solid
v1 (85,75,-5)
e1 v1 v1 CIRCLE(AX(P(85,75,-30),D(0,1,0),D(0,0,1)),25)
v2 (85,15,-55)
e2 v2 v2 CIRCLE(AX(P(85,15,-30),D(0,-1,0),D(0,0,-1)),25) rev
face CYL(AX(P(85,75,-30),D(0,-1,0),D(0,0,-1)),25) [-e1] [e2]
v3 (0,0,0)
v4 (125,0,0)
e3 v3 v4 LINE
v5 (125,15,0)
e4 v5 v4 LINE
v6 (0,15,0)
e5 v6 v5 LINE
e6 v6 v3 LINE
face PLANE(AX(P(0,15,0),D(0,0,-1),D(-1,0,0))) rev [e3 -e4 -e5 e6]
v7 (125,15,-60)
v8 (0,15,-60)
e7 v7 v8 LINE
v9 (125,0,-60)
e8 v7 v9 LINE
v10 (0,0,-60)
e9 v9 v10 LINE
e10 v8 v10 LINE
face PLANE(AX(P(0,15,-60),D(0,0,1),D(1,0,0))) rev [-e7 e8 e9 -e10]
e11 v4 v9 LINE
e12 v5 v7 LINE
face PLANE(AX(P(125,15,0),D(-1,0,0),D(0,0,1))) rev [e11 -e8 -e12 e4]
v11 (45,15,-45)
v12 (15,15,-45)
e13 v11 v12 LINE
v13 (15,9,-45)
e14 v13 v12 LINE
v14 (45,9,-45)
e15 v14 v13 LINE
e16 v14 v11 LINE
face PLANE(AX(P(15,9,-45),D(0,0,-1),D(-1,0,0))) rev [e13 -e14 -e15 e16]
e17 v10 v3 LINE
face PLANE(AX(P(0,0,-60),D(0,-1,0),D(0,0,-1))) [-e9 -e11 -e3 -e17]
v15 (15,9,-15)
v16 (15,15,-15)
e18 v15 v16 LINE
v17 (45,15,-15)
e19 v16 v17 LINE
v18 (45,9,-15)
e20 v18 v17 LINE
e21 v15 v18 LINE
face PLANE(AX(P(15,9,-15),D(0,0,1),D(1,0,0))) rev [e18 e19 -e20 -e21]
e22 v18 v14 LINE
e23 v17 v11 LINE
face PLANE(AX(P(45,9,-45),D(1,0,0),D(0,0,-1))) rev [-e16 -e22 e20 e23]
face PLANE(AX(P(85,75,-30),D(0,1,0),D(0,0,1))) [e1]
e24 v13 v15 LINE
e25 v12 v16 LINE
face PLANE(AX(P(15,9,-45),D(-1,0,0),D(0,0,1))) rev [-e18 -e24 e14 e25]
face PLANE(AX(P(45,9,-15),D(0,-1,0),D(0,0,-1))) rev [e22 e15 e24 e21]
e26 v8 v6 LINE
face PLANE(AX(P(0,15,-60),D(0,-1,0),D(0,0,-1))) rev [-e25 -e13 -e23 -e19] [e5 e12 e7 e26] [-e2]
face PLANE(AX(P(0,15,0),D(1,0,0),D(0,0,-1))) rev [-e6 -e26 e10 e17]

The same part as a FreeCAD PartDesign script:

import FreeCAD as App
import Part
import Sketcher
from FreeCAD import Vector

doc = App.newDocument("Part")
params = doc.addObject("Spreadsheet::Sheet", "Params")
for row, (alias, value) in enumerate([
    ("sketch1_width", "125 mm"),
    ("sketch1_height", "60 mm"),
    ("pad1_length", "15 mm"),
    ("sketch2_diameter", "50 mm"),
    ("pad2_length", "60 mm"),
    ("sketch3_width", "30 mm"),
    ("pocket1_length", "6 mm"),
], start=1):
    params.set(f"A{row}", alias)
    params.set(f"B{row}", "=" + value)
    params.setAlias(f"B{row}", alias)

body = doc.addObject("PartDesign::Body", "Body")

# Sketch on XZ plane
sketch1 = doc.addObject("Sketcher::SketchObject", "Sketch")
body.addObject(sketch1)
sketch1.AttachmentSupport = (doc.XZ_Plane, [""])
sketch1.MapMode = "FlatFace"
sketch1.addGeometry([
    Part.LineSegment(Vector(0, -60, 0), Vector(0, 0, 0)),
    Part.LineSegment(Vector(0, 0, 0), Vector(125, 0, 0)),
    Part.LineSegment(Vector(125, 0, 0), Vector(125, -60, 0)),
    Part.LineSegment(Vector(125, -60, 0), Vector(0, -60, 0)),
], False)
sketch1.addConstraint([
    Sketcher.Constraint("Coincident", 0, 2, 1, 1),
    Sketcher.Constraint("Coincident", 1, 2, 2, 1),
    Sketcher.Constraint("Coincident", 2, 2, 3, 1),
    Sketcher.Constraint("Coincident", 3, 2, 0, 1),
    Sketcher.Constraint("Vertical", 0),
    Sketcher.Constraint("Horizontal", 1),
    Sketcher.Constraint("Vertical", 2),
    Sketcher.Constraint("Horizontal", 3),
    Sketcher.Constraint("Coincident", 0, 2, -1, 1),
    Sketcher.Constraint("DistanceX", 1, 1, 1, 2, 125.0),
    Sketcher.Constraint("DistanceY", 0, 1, 0, 2, 60.0),
])
sketch1.setExpression("Constraints[9]", "Params.sketch1_width")
sketch1.setExpression("Constraints[10]", "Params.sketch1_height")
pad1 = doc.addObject("PartDesign::Pad", "Pad")
body.addObject(pad1)
pad1.Profile = sketch1
pad1.setExpression("Length", "Params.pad1_length")
pad1.Reversed = True

# Sketch on XZ plane
sketch2 = doc.addObject("Sketcher::SketchObject", "Sketch001")
body.addObject(sketch2)
sketch2.AttachmentSupport = (doc.XZ_Plane, [""])
sketch2.MapMode = "FlatFace"
sketch2.AttachmentOffset = App.Placement(Vector(0, 0, -15), App.Rotation())
sketch2.addGeometry(Part.Circle(Vector(85, -30, 0), Vector(0, 0, 1), 25), False)
sketch2.addConstraint([
    Sketcher.Constraint("Diameter", 0, 50.0),
    Sketcher.Constraint("DistanceX", -1, 1, 0, 3, 85.0),
    Sketcher.Constraint("DistanceY", 0, 3, -1, 1, 30.0),
])
sketch2.setExpression("Constraints[0]", "Params.sketch2_diameter")
pad2 = doc.addObject("PartDesign::Pad", "Pad001")
body.addObject(pad2)
pad2.Profile = sketch2
pad2.setExpression("Length", "Params.pad2_length")
pad2.Reversed = True

# Sketch on XZ plane
sketch3 = doc.addObject("Sketcher::SketchObject", "Sketch002")
body.addObject(sketch3)
sketch3.AttachmentSupport = (doc.XZ_Plane, [""])
sketch3.MapMode = "FlatFace"
sketch3.AttachmentOffset = App.Placement(Vector(0, 0, -15), App.Rotation())
sketch3.addGeometry([
    Part.LineSegment(Vector(45, -15, 0), Vector(45, -45, 0)),
    Part.LineSegment(Vector(45, -45, 0), Vector(15, -45, 0)),
    Part.LineSegment(Vector(15, -45, 0), Vector(15, -15, 0)),
    Part.LineSegment(Vector(15, -15, 0), Vector(45, -15, 0)),
], False)
sketch3.addConstraint([
    Sketcher.Constraint("Coincident", 0, 2, 1, 1),
    Sketcher.Constraint("Coincident", 1, 2, 2, 1),
    Sketcher.Constraint("Coincident", 2, 2, 3, 1),
    Sketcher.Constraint("Coincident", 3, 2, 0, 1),
    Sketcher.Constraint("Vertical", 0),
    Sketcher.Constraint("Horizontal", 1),
    Sketcher.Constraint("Vertical", 2),
    Sketcher.Constraint("Horizontal", 3),
    Sketcher.Constraint("Equal", 3, 0),
    Sketcher.Constraint("DistanceX", 1, 2, 1, 1, 30.0),
    Sketcher.Constraint("DistanceX", -1, 1, 0, 2, 45.0),
    Sketcher.Constraint("DistanceY", 0, 2, -1, 1, 45.0),
])
sketch3.setExpression("Constraints[9]", "Params.sketch3_width")
pocket1 = doc.addObject("PartDesign::Pocket", "Pocket")
body.addObject(pocket1)
pocket1.Profile = sketch3
pocket1.setExpression("Length", "Params.pocket1_length")
pocket1.Reversed = True

doc.recompute()
